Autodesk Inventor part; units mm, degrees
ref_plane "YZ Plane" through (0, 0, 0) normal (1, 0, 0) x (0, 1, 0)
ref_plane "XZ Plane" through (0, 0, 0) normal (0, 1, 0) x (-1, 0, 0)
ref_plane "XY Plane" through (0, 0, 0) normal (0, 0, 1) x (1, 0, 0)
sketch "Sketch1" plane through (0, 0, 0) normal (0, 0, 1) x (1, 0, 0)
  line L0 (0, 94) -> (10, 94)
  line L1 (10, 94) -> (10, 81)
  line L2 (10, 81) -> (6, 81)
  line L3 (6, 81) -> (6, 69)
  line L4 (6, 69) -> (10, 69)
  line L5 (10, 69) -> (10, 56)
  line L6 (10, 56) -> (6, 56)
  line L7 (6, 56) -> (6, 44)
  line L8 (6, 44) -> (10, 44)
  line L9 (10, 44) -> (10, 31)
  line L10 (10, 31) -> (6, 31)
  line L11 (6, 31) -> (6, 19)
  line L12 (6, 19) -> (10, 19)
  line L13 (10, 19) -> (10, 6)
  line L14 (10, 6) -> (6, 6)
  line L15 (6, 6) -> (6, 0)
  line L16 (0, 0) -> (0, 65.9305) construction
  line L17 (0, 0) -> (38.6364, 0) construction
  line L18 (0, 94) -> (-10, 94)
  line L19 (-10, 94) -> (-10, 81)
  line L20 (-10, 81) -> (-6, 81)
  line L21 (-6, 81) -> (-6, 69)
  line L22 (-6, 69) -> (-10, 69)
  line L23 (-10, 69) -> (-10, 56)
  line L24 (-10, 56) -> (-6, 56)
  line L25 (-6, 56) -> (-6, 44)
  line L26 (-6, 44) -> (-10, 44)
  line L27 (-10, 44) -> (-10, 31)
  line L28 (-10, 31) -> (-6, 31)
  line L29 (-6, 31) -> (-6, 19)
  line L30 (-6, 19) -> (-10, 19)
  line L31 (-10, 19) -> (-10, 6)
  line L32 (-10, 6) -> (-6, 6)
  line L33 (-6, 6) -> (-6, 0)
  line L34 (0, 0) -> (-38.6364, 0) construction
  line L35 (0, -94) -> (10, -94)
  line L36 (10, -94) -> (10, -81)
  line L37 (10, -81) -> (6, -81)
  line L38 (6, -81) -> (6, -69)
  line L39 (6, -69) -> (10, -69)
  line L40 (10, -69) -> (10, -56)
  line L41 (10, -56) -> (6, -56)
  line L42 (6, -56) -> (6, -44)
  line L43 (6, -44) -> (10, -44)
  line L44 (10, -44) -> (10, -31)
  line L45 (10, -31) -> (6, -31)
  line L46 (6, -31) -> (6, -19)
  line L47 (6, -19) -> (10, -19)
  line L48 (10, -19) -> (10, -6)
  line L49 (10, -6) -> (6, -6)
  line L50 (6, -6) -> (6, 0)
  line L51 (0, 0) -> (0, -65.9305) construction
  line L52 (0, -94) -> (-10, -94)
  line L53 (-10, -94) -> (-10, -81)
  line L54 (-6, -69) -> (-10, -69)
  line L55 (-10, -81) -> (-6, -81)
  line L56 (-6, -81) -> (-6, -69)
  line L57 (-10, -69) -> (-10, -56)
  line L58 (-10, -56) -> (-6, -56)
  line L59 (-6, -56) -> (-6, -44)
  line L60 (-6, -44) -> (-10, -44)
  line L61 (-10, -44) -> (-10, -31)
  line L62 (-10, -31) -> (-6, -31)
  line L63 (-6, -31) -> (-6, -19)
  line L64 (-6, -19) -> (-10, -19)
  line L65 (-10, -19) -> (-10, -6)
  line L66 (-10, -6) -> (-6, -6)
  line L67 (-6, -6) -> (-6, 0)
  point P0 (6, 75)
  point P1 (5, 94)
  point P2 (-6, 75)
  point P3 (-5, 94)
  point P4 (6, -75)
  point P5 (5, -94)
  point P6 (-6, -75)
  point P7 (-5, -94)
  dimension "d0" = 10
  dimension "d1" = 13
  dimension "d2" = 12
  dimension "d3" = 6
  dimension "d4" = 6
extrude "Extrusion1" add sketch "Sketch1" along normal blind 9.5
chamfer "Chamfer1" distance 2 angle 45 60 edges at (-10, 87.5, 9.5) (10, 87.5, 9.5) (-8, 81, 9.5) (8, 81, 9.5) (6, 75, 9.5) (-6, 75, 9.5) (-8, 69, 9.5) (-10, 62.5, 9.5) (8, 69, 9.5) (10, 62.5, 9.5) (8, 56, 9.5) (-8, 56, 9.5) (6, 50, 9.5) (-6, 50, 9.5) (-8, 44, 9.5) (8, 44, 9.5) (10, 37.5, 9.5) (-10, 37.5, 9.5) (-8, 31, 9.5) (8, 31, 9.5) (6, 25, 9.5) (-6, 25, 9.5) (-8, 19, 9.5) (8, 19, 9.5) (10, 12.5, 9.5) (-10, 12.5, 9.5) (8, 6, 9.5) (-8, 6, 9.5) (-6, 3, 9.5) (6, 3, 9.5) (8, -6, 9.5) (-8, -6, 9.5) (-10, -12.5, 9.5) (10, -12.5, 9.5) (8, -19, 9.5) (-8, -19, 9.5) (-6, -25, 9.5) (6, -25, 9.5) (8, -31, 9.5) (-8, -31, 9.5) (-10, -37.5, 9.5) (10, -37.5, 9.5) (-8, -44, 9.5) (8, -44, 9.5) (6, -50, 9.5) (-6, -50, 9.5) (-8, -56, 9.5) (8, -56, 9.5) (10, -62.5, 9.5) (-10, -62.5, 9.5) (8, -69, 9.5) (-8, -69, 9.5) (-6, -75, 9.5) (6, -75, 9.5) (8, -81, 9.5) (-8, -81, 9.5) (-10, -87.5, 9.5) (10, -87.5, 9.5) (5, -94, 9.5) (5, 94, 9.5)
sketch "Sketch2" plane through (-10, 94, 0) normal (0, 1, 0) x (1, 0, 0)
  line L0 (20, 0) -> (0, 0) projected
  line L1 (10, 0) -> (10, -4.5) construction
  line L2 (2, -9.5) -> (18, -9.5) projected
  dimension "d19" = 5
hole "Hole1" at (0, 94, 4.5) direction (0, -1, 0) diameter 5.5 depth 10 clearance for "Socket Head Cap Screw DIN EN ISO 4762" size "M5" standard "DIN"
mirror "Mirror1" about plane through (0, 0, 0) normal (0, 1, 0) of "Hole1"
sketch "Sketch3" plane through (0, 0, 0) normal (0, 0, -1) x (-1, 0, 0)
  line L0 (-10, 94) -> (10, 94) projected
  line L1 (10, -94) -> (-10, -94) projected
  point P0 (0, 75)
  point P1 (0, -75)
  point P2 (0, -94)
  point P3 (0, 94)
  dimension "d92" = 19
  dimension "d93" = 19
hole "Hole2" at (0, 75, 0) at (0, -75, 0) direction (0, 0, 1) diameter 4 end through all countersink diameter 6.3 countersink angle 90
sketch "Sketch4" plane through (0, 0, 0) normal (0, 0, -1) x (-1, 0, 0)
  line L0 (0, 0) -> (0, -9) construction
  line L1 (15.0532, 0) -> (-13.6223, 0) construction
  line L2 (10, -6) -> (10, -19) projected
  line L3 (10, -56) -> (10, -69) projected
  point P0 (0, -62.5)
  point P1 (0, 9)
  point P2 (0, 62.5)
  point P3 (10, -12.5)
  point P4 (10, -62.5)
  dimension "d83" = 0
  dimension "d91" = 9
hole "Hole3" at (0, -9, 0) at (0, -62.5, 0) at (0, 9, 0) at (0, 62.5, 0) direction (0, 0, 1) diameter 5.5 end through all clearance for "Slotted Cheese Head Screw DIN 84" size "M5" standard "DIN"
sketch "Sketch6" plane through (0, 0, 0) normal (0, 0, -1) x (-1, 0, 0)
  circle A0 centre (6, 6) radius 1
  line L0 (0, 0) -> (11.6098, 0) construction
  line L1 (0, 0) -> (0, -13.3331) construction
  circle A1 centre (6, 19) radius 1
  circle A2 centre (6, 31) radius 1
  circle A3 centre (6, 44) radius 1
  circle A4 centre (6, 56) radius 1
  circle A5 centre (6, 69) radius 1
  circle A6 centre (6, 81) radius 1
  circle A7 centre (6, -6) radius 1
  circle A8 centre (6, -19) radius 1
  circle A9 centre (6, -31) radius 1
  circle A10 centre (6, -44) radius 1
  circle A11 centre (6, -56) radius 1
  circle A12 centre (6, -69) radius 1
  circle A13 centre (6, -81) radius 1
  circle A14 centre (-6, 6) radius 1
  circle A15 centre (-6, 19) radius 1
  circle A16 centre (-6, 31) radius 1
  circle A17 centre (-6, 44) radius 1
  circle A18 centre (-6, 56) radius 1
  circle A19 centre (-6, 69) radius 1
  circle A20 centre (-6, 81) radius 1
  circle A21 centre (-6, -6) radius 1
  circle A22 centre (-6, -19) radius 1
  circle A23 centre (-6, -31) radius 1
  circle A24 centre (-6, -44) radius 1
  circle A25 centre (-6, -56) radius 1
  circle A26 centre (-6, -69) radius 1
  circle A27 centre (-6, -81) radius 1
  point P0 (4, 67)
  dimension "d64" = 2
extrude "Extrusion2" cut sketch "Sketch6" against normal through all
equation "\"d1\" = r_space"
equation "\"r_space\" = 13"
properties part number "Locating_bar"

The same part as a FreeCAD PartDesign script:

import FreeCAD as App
import Part
import Sketcher

V = App.Vector


def edges_at(feature, points):
    """Names of the edges that pass closest to the given points."""
    edges = feature.Shape.Edges
    near = lambda p: min(range(len(edges)), key=lambda i: edges[i].distToShape(Part.Vertex(*p))[0])
    return sorted({f"Edge{near(p) + 1}" for p in points})


def add_polygon(sketch, points):
    """Adds a closed chain of lines whose ends are joined by coincident constraints."""
    first, n = sketch.GeometryCount, len(points)
    for a, b in zip(points, points[1:] + points[:1]):
        sketch.addGeometry(Part.LineSegment(App.Vector(*a, 0), App.Vector(*b, 0)), False)
    for i in range(n):
        sketch.addConstraint(Sketcher.Constraint("Coincident", first + i, 2, first + (i + 1) % n, 1))

doc = App.newDocument("Part")
body = doc.addObject("PartDesign::Body", "Body")

# Sketch on XY plane
sketch1 = body.newObject("Sketcher::SketchObject", "Sketch")
sketch1.AttachmentSupport = (doc.getObject("XY_Plane"), [""])
sketch1.MapMode = "FlatFace"
add_polygon(sketch1, [(10, 94), (-10, 94), (-10, 81), (-6, 81), (-6, 69), (-10, 69), (-10, 56), (-6, 56), (-6, 44), (-10, 44), (-10, 31), (-6, 31), (-6, 19), (-10, 19), (-10, 6), (-6, 6), (-6, -6), (-10, -6), (-10, -19), (-6, -19), (-6, -31), (-10, -31), (-10, -44), (-6, -44), (-6, -56), (-10, -56), (-10, -69), (-6, -69), (-6, -81), (-10, -81), (-10, -94), (10, -94), (10, -81), (6, -81), (6, -69), (10, -69), (10, -56), (6, -56), (6, -44), (10, -44), (10, -31), (6, -31), (6, -19), (10, -19), (10, -6), (6, -6), (6, 6), (10, 6), (10, 19), (6, 19), (6, 31), (10, 31), (10, 44), (6, 44), (6, 56), (10, 56), (10, 69), (6, 69), (6, 81), (10, 81)])  # lines 0-59
sketch1.addConstraint([
    Sketcher.Constraint("Horizontal", 0),
    Sketcher.Constraint("Vertical", 1),
    Sketcher.Constraint("Horizontal", 2),
    Sketcher.Constraint("Vertical", 3),
    Sketcher.Constraint("Horizontal", 4),
    Sketcher.Constraint("Vertical", 5),
    Sketcher.Constraint("Horizontal", 6),
    Sketcher.Constraint("Vertical", 7),
    Sketcher.Constraint("Horizontal", 8),
    Sketcher.Constraint("Vertical", 9),
    Sketcher.Constraint("Horizontal", 10),
    Sketcher.Constraint("Vertical", 11),
    Sketcher.Constraint("Horizontal", 12),
    Sketcher.Constraint("Vertical", 13),
    Sketcher.Constraint("Horizontal", 14),
    Sketcher.Constraint("Vertical", 15),
    Sketcher.Constraint("Horizontal", 16),
    Sketcher.Constraint("Vertical", 17),
    Sketcher.Constraint("Horizontal", 18),
    Sketcher.Constraint("Vertical", 19),
    Sketcher.Constraint("Horizontal", 20),
    Sketcher.Constraint("Vertical", 21),
    Sketcher.Constraint("Horizontal", 22),
    Sketcher.Constraint("Vertical", 23),
    Sketcher.Constraint("Horizontal", 24),
    Sketcher.Constraint("Vertical", 25),
    Sketcher.Constraint("Horizontal", 26),
    Sketcher.Constraint("Vertical", 27),
    Sketcher.Constraint("Horizontal", 28),
    Sketcher.Constraint("Vertical", 29),
    Sketcher.Constraint("Horizontal", 30),
    Sketcher.Constraint("Vertical", 31),
    Sketcher.Constraint("Horizontal", 32),
    Sketcher.Constraint("Vertical", 33),
    Sketcher.Constraint("Horizontal", 34),
    Sketcher.Constraint("Vertical", 35),
    Sketcher.Constraint("Horizontal", 36),
    Sketcher.Constraint("Vertical", 37),
    Sketcher.Constraint("Horizontal", 38),
    Sketcher.Constraint("Vertical", 39),
    Sketcher.Constraint("Horizontal", 40),
    Sketcher.Constraint("Vertical", 41),
    Sketcher.Constraint("Horizontal", 42),
    Sketcher.Constraint("Vertical", 43),
    Sketcher.Constraint("Horizontal", 44),
    Sketcher.Constraint("Vertical", 45),
    Sketcher.Constraint("Horizontal", 46),
    Sketcher.Constraint("Vertical", 47),
    Sketcher.Constraint("Horizontal", 48),
    Sketcher.Constraint("Vertical", 49),
    Sketcher.Constraint("Horizontal", 50),
    Sketcher.Constraint("Vertical", 51),
    Sketcher.Constraint("Horizontal", 52),
    Sketcher.Constraint("Vertical", 53),
    Sketcher.Constraint("Horizontal", 54),
    Sketcher.Constraint("Vertical", 55),
    Sketcher.Constraint("Horizontal", 56),
    Sketcher.Constraint("Vertical", 57),
    Sketcher.Constraint("Horizontal", 58),
    Sketcher.Constraint("Vertical", 59),
    Sketcher.Constraint("Symmetric", 0, 2, 30, 2, -1, 1),
    Sketcher.Constraint("Symmetric", 2, 2, 32, 2, -1, 1),
    Sketcher.Constraint("Symmetric", 4, 2, 34, 2, -1, 1),
    Sketcher.Constraint("Symmetric", 6, 2, 36, 2, -1, 1),
    Sketcher.Constraint("Symmetric", 8, 2, 38, 2, -1, 1),
    Sketcher.Constraint("Symmetric", 10, 2, 40, 2, -1, 1),
    Sketcher.Constraint("Symmetric", 12, 2, 42, 2, -1, 1),
    Sketcher.Constraint("Symmetric", 14, 2, 44, 2, -1, 1),
    Sketcher.Constraint("Symmetric", 16, 2, 46, 2, -1, 1),
    Sketcher.Constraint("Symmetric", 18, 2, 48, 2, -1, 1),
    Sketcher.Constraint("Symmetric", 20, 2, 50, 2, -1, 1),
    Sketcher.Constraint("Symmetric", 22, 2, 52, 2, -1, 1),
    Sketcher.Constraint("Symmetric", 24, 2, 54, 2, -1, 1),
    Sketcher.Constraint("Symmetric", 26, 2, 56, 2, -1, 1),
    Sketcher.Constraint("Symmetric", 28, 2, 58, 2, -1, 1),
    Sketcher.Constraint("Symmetric", 28, 2, 31, 2, -2),
    Sketcher.Constraint("Symmetric", 26, 2, 33, 2, -2),
    Sketcher.Constraint("Symmetric", 24, 2, 35, 2, -2),
    Sketcher.Constraint("Symmetric", 22, 2, 37, 2, -2),
    Sketcher.Constraint("Symmetric", 20, 2, 39, 2, -2),
    Sketcher.Constraint("Symmetric", 18, 2, 41, 2, -2),
    Sketcher.Constraint("Symmetric", 16, 2, 43, 2, -2),
    Sketcher.Constraint("Vertical", 1, 2, 4, 2),
    Sketcher.Constraint("Vertical", 3, 2, 6, 2),
    Sketcher.Constraint("Vertical", 5, 2, 8, 2),
    Sketcher.Constraint("Vertical", 7, 2, 10, 2),
    Sketcher.Constraint("Vertical", 9, 2, 12, 2),
    Sketcher.Constraint("Vertical", 11, 2, 14, 2),
    Sketcher.Constraint("Equal", 1, 5),
    Sketcher.Constraint("Equal", 3, 7),
    Sketcher.Constraint("Equal", 5, 9),
    Sketcher.Constraint("Equal", 7, 11),
    Sketcher.Constraint("Equal", 9, 13),
    Sketcher.Constraint("Equal", 11, 15),
    Sketcher.Constraint("DistanceY", 1, 2, 1, 1, 13.0),
    Sketcher.Constraint("DistanceY", 3, 2, 3, 1, 12.0),
    Sketcher.Constraint("DistanceX", 0, 2, -1, 1, 10.0),
    Sketcher.Constraint("DistanceX", 2, 2, -1, 1, 6.0),
])
pad1 = body.newObject("PartDesign::Pad", "Pad")
pad1.Profile = sketch1
pad1.Length = 9.5
doc.recompute()

chamfer = body.newObject("PartDesign::Chamfer", "Chamfer")
chamfer.Base = (pad1, edges_at(pad1, [
    (-10, 87.5, 9.5),
    (10, 87.5, 9.5),
    (-8, 81, 9.5),
    (8, 81, 9.5),
    (6, 75, 9.5),
    (-6, 75, 9.5),
    (-8, 69, 9.5),
    (-10, 62.5, 9.5),
    (8, 69, 9.5),
    (10, 62.5, 9.5),
    (8, 56, 9.5),
    (-8, 56, 9.5),
    (6, 50, 9.5),
    (-6, 50, 9.5),
    (-8, 44, 9.5),
    (8, 44, 9.5),
    (10, 37.5, 9.5),
    (-10, 37.5, 9.5),
    (-8, 31, 9.5),
    (8, 31, 9.5),
    (6, 25, 9.5),
    (-6, 25, 9.5),
    (-8, 19, 9.5),
    (8, 19, 9.5),
    (10, 12.5, 9.5),
    (-10, 12.5, 9.5),
    (8, 6, 9.5),
    (-8, 6, 9.5),
    (-6, 3, 9.5),
    (6, 3, 9.5),
    (8, -6, 9.5),
    (-8, -6, 9.5),
    (-10, -12.5, 9.5),
    (10, -12.5, 9.5),
    (8, -19, 9.5),
    (-8, -19, 9.5),
    (-6, -25, 9.5),
    (6, -25, 9.5),
    (8, -31, 9.5),
    (-8, -31, 9.5),
    (-10, -37.5, 9.5),
    (10, -37.5, 9.5),
    (-8, -44, 9.5),
    (8, -44, 9.5),
    (6, -50, 9.5),
    (-6, -50, 9.5),
    (-8, -56, 9.5),
    (8, -56, 9.5),
    (10, -62.5, 9.5),
    (-10, -62.5, 9.5),
    (8, -69, 9.5),
    (-8, -69, 9.5),
    (-6, -75, 9.5),
    (6, -75, 9.5),
    (8, -81, 9.5),
    (-8, -81, 9.5),
    (-10, -87.5, 9.5),
    (10, -87.5, 9.5),
    (5, -94, 9.5),
    (5, 94, 9.5),
]))
chamfer.Size = 2

# Sketch on XZ plane
sketch2 = body.newObject("Sketcher::SketchObject", "Sketch001")
sketch2.AttachmentSupport = (doc.getObject("XZ_Plane"), [""])
sketch2.MapMode = "FlatFace"
sketch2.AttachmentOffset = App.Placement(V(0, 0, -94), App.Rotation())
sketch2.addGeometry(Part.Circle(V(0, 4.5, 0), V(0, 0, 1), 2.8), False)
sketch2.addConstraint([
    Sketcher.Constraint("PointOnObject", 0, 3, -2),
    Sketcher.Constraint("Diameter", 0, 5.5),
    Sketcher.Constraint("DistanceY", -1, 1, 0, 3, 4.5),
])
doc.recompute()
hole = body.newObject("PartDesign::Hole", "Hole")
hole.Profile = sketch2
hole.ThreadType = "None"
hole.Diameter = 5.5
hole.DepthType = "Dimension"
hole.Depth = 10
hole.DrillPoint = "Flat"
hole.Reversed = True
doc.recompute()

mirrored = body.newObject("PartDesign::Mirrored", "Mirrored")
mirrored.Originals = [hole]
mirrored.MirrorPlane = (doc.getObject("XZ_Plane"), [""])
body.Tip = mirrored

# Sketch on XY plane
sketch3 = body.newObject("Sketcher::SketchObject", "Sketch002")
sketch3.AttachmentSupport = (doc.getObject("XY_Plane"), [""])
sketch3.MapMode = "FlatFace"
sketch3.addGeometry([
    Part.Circle(V(0, 75, 0), V(0, 0, 1), 2),
    Part.Circle(V(0, -75, 0), V(0, 0, 1), 2),
], False)
sketch3.addConstraint([
    Sketcher.Constraint("Equal", 0, 1),
    Sketcher.Constraint("Symmetric", 0, 3, 1, 3, -1, 1),
    Sketcher.Constraint("PointOnObject", 0, 3, -2),
    Sketcher.Constraint("Diameter", 0, 4.0),
    Sketcher.Constraint("DistanceY", -1, 1, 0, 3, 75.0),
])
doc.recompute()
hole2 = body.newObject("PartDesign::Hole", "Hole001")
hole2.Profile = sketch3
hole2.ThreadType = "None"
hole2.Diameter = 4
hole2.DepthType = "ThroughAll"
hole2.HoleCutType = "Countersink"
hole2.HoleCutDiameter = 6.3
hole2.HoleCutCountersinkAngle = 90
hole2.Reversed = True

# Sketch on XY plane
sketch4 = body.newObject("Sketcher::SketchObject", "Sketch003")
sketch4.AttachmentSupport = (doc.getObject("XY_Plane"), [""])
sketch4.MapMode = "FlatFace"
sketch4.addGeometry([
    Part.Circle(V(0, -9, 0), V(0, 0, 1), 2.8),
    Part.Circle(V(0, -62.5, 0), V(0, 0, 1), 2.8),
    Part.Circle(V(0, 9, 0), V(0, 0, 1), 2.8),
    Part.Circle(V(0, 62.5, 0), V(0, 0, 1), 2.8),
], False)
sketch4.addConstraint([
    Sketcher.Constraint("Equal", 0, 1),
    Sketcher.Constraint("Equal", 1, 2),
    Sketcher.Constraint("Equal", 2, 3),
    Sketcher.Constraint("Symmetric", 0, 3, 2, 3, -1, 1),
    Sketcher.Constraint("Symmetric", 1, 3, 3, 3, -1, 1),
    Sketcher.Constraint("PointOnObject", 0, 3, -2),
    Sketcher.Constraint("PointOnObject", 1, 3, -2),
    Sketcher.Constraint("Diameter", 0, 5.5),
    Sketcher.Constraint("DistanceY", 0, 3, -1, 1, 9.0),
    Sketcher.Constraint("DistanceY", 1, 3, 3, 3, 125.0),
])
doc.recompute()
hole3 = body.newObject("PartDesign::Hole", "Hole002")
hole3.Profile = sketch4
hole3.ThreadType = "None"
hole3.Diameter = 5.5
hole3.DepthType = "ThroughAll"
hole3.Reversed = True

# Sketch on XY plane
sketch5 = body.newObject("Sketcher::SketchObject", "Sketch004")
sketch5.AttachmentSupport = (doc.getObject("XY_Plane"), [""])
sketch5.MapMode = "FlatFace"
sketch5.addGeometry([
    Part.Circle(V(-6, 6, 0), V(0, 0, 1), 1),  # 0
    Part.Circle(V(-6, 19, 0), V(0, 0, 1), 1),  # 1
    Part.Circle(V(-6, 31, 0), V(0, 0, 1), 1),  # 2
    Part.Circle(V(-6, 44, 0), V(0, 0, 1), 1),  # 3
    Part.Circle(V(-6, 56, 0), V(0, 0, 1), 1),  # 4
    Part.Circle(V(-6, 69, 0), V(0, 0, 1), 1),  # 5
    Part.Circle(V(-6, 81, 0), V(0, 0, 1), 1),  # 6
    Part.Circle(V(-6, -6, 0), V(0, 0, 1), 1),  # 7
    Part.Circle(V(-6, -19, 0), V(0, 0, 1), 1),  # 8
    Part.Circle(V(-6, -31, 0), V(0, 0, 1), 1),  # 9
    Part.Circle(V(-6, -44, 0), V(0, 0, 1), 1),  # 10
    Part.Circle(V(-6, -56, 0), V(0, 0, 1), 1),  # 11
    Part.Circle(V(-6, -69, 0), V(0, 0, 1), 1),  # 12
    Part.Circle(V(-6, -81, 0), V(0, 0, 1), 1),  # 13
    Part.Circle(V(6, 6, 0), V(0, 0, 1), 1),  # 14
    Part.Circle(V(6, 19, 0), V(0, 0, 1), 1),  # 15
    Part.Circle(V(6, 31, 0), V(0, 0, 1), 1),  # 16
    Part.Circle(V(6, 44, 0), V(0, 0, 1), 1),  # 17
    Part.Circle(V(6, 56, 0), V(0, 0, 1), 1),  # 18
    Part.Circle(V(6, 69, 0), V(0, 0, 1), 1),  # 19
    Part.Circle(V(6, 81, 0), V(0, 0, 1), 1),  # 20
    Part.Circle(V(6, -6, 0), V(0, 0, 1), 1),  # 21
    Part.Circle(V(6, -19, 0), V(0, 0, 1), 1),  # 22
    Part.Circle(V(6, -31, 0), V(0, 0, 1), 1),  # 23
    Part.Circle(V(6, -44, 0), V(0, 0, 1), 1),  # 24
    Part.Circle(V(6, -56, 0), V(0, 0, 1), 1),  # 25
    Part.Circle(V(6, -69, 0), V(0, 0, 1), 1),  # 26
    Part.Circle(V(6, -81, 0), V(0, 0, 1), 1),  # 27
], False)
sketch5.addConstraint([
    Sketcher.Constraint("Equal", 0, 1),
    Sketcher.Constraint("Equal", 1, 2),
    Sketcher.Constraint("Equal", 2, 3),
    Sketcher.Constraint("Equal", 3, 4),
    Sketcher.Constraint("Equal", 4, 5),
    Sketcher.Constraint("Equal", 5, 6),
    Sketcher.Constraint("Equal", 6, 7),
    Sketcher.Constraint("Equal", 7, 8),
    Sketcher.Constraint("Equal", 8, 9),
    Sketcher.Constraint("Equal", 9, 10),
    Sketcher.Constraint("Equal", 10, 11),
    Sketcher.Constraint("Equal", 11, 12),
    Sketcher.Constraint("Equal", 12, 13),
    Sketcher.Constraint("Equal", 13, 14),
    Sketcher.Constraint("Equal", 14, 15),
    Sketcher.Constraint("Equal", 15, 16),
    Sketcher.Constraint("Equal", 16, 17),
    Sketcher.Constraint("Equal", 17, 18),
    Sketcher.Constraint("Equal", 18, 19),
    Sketcher.Constraint("Equal", 19, 20),
    Sketcher.Constraint("Equal", 20, 21),
    Sketcher.Constraint("Equal", 21, 22),
    Sketcher.Constraint("Equal", 22, 23),
    Sketcher.Constraint("Equal", 23, 24),
    Sketcher.Constraint("Equal", 24, 25),
    Sketcher.Constraint("Equal", 25, 26),
    Sketcher.Constraint("Equal", 26, 27),
    Sketcher.Constraint("Symmetric", 7, 3, 14, 3, -1, 1),
    Sketcher.Constraint("Symmetric", 8, 3, 15, 3, -1, 1),
    Sketcher.Constraint("Symmetric", 9, 3, 16, 3, -1, 1),
    Sketcher.Constraint("Symmetric", 10, 3, 17, 3, -1, 1),
    Sketcher.Constraint("Symmetric", 11, 3, 18, 3, -1, 1),
    Sketcher.Constraint("Symmetric", 12, 3, 19, 3, -1, 1),
    Sketcher.Constraint("Symmetric", 13, 3, 20, 3, -1, 1),
    Sketcher.Constraint("Symmetric", 0, 3, 21, 3, -1, 1),
    Sketcher.Constraint("Symmetric", 1, 3, 22, 3, -1, 1),
    Sketcher.Constraint("Symmetric", 2, 3, 23, 3, -1, 1),
    Sketcher.Constraint("Symmetric", 3, 3, 24, 3, -1, 1),
    Sketcher.Constraint("Symmetric", 4, 3, 25, 3, -1, 1),
    Sketcher.Constraint("Symmetric", 5, 3, 26, 3, -1, 1),
    Sketcher.Constraint("Symmetric", 6, 3, 27, 3, -1, 1),
    Sketcher.Constraint("Symmetric", 0, 3, 14, 3, -2),
    Sketcher.Constraint("Symmetric", 1, 3, 15, 3, -2),
    Sketcher.Constraint("Symmetric", 2, 3, 16, 3, -2),
    Sketcher.Constraint("Symmetric", 3, 3, 17, 3, -2),
    Sketcher.Constraint("Symmetric", 4, 3, 18, 3, -2),
    Sketcher.Constraint("Symmetric", 5, 3, 19, 3, -2),
    Sketcher.Constraint("Symmetric", 6, 3, 20, 3, -2),
    Sketcher.Constraint("Vertical", 0, 3, 1, 3),
    Sketcher.Constraint("Vertical", 1, 3, 2, 3),
    Sketcher.Constraint("Vertical", 2, 3, 3, 3),
    Sketcher.Constraint("Vertical", 3, 3, 4, 3),
    Sketcher.Constraint("Vertical", 4, 3, 5, 3),
    Sketcher.Constraint("Vertical", 5, 3, 6, 3),
    Sketcher.Constraint("Diameter", 0, 2.0),
    Sketcher.Constraint("DistanceX", 0, 3, -1, 1, 6.0),
    Sketcher.Constraint("DistanceY", -1, 1, 0, 3, 6.0),
    Sketcher.Constraint("DistanceY", -1, 1, 1, 3, 19.0),
    Sketcher.Constraint("DistanceY", -1, 1, 2, 3, 31.0),
    Sketcher.Constraint("DistanceY", -1, 1, 3, 3, 44.0),
    Sketcher.Constraint("DistanceY", -1, 1, 4, 3, 56.0),
    Sketcher.Constraint("DistanceY", -1, 1, 5, 3, 69.0),
    Sketcher.Constraint("DistanceY", -1, 1, 6, 3, 81.0),
])
pocket1 = body.newObject("PartDesign::Pocket", "Pocket")
pocket1.Profile = sketch5
pocket1.Type = "ThroughAll"
pocket1.Reversed = True

doc.recompute()
